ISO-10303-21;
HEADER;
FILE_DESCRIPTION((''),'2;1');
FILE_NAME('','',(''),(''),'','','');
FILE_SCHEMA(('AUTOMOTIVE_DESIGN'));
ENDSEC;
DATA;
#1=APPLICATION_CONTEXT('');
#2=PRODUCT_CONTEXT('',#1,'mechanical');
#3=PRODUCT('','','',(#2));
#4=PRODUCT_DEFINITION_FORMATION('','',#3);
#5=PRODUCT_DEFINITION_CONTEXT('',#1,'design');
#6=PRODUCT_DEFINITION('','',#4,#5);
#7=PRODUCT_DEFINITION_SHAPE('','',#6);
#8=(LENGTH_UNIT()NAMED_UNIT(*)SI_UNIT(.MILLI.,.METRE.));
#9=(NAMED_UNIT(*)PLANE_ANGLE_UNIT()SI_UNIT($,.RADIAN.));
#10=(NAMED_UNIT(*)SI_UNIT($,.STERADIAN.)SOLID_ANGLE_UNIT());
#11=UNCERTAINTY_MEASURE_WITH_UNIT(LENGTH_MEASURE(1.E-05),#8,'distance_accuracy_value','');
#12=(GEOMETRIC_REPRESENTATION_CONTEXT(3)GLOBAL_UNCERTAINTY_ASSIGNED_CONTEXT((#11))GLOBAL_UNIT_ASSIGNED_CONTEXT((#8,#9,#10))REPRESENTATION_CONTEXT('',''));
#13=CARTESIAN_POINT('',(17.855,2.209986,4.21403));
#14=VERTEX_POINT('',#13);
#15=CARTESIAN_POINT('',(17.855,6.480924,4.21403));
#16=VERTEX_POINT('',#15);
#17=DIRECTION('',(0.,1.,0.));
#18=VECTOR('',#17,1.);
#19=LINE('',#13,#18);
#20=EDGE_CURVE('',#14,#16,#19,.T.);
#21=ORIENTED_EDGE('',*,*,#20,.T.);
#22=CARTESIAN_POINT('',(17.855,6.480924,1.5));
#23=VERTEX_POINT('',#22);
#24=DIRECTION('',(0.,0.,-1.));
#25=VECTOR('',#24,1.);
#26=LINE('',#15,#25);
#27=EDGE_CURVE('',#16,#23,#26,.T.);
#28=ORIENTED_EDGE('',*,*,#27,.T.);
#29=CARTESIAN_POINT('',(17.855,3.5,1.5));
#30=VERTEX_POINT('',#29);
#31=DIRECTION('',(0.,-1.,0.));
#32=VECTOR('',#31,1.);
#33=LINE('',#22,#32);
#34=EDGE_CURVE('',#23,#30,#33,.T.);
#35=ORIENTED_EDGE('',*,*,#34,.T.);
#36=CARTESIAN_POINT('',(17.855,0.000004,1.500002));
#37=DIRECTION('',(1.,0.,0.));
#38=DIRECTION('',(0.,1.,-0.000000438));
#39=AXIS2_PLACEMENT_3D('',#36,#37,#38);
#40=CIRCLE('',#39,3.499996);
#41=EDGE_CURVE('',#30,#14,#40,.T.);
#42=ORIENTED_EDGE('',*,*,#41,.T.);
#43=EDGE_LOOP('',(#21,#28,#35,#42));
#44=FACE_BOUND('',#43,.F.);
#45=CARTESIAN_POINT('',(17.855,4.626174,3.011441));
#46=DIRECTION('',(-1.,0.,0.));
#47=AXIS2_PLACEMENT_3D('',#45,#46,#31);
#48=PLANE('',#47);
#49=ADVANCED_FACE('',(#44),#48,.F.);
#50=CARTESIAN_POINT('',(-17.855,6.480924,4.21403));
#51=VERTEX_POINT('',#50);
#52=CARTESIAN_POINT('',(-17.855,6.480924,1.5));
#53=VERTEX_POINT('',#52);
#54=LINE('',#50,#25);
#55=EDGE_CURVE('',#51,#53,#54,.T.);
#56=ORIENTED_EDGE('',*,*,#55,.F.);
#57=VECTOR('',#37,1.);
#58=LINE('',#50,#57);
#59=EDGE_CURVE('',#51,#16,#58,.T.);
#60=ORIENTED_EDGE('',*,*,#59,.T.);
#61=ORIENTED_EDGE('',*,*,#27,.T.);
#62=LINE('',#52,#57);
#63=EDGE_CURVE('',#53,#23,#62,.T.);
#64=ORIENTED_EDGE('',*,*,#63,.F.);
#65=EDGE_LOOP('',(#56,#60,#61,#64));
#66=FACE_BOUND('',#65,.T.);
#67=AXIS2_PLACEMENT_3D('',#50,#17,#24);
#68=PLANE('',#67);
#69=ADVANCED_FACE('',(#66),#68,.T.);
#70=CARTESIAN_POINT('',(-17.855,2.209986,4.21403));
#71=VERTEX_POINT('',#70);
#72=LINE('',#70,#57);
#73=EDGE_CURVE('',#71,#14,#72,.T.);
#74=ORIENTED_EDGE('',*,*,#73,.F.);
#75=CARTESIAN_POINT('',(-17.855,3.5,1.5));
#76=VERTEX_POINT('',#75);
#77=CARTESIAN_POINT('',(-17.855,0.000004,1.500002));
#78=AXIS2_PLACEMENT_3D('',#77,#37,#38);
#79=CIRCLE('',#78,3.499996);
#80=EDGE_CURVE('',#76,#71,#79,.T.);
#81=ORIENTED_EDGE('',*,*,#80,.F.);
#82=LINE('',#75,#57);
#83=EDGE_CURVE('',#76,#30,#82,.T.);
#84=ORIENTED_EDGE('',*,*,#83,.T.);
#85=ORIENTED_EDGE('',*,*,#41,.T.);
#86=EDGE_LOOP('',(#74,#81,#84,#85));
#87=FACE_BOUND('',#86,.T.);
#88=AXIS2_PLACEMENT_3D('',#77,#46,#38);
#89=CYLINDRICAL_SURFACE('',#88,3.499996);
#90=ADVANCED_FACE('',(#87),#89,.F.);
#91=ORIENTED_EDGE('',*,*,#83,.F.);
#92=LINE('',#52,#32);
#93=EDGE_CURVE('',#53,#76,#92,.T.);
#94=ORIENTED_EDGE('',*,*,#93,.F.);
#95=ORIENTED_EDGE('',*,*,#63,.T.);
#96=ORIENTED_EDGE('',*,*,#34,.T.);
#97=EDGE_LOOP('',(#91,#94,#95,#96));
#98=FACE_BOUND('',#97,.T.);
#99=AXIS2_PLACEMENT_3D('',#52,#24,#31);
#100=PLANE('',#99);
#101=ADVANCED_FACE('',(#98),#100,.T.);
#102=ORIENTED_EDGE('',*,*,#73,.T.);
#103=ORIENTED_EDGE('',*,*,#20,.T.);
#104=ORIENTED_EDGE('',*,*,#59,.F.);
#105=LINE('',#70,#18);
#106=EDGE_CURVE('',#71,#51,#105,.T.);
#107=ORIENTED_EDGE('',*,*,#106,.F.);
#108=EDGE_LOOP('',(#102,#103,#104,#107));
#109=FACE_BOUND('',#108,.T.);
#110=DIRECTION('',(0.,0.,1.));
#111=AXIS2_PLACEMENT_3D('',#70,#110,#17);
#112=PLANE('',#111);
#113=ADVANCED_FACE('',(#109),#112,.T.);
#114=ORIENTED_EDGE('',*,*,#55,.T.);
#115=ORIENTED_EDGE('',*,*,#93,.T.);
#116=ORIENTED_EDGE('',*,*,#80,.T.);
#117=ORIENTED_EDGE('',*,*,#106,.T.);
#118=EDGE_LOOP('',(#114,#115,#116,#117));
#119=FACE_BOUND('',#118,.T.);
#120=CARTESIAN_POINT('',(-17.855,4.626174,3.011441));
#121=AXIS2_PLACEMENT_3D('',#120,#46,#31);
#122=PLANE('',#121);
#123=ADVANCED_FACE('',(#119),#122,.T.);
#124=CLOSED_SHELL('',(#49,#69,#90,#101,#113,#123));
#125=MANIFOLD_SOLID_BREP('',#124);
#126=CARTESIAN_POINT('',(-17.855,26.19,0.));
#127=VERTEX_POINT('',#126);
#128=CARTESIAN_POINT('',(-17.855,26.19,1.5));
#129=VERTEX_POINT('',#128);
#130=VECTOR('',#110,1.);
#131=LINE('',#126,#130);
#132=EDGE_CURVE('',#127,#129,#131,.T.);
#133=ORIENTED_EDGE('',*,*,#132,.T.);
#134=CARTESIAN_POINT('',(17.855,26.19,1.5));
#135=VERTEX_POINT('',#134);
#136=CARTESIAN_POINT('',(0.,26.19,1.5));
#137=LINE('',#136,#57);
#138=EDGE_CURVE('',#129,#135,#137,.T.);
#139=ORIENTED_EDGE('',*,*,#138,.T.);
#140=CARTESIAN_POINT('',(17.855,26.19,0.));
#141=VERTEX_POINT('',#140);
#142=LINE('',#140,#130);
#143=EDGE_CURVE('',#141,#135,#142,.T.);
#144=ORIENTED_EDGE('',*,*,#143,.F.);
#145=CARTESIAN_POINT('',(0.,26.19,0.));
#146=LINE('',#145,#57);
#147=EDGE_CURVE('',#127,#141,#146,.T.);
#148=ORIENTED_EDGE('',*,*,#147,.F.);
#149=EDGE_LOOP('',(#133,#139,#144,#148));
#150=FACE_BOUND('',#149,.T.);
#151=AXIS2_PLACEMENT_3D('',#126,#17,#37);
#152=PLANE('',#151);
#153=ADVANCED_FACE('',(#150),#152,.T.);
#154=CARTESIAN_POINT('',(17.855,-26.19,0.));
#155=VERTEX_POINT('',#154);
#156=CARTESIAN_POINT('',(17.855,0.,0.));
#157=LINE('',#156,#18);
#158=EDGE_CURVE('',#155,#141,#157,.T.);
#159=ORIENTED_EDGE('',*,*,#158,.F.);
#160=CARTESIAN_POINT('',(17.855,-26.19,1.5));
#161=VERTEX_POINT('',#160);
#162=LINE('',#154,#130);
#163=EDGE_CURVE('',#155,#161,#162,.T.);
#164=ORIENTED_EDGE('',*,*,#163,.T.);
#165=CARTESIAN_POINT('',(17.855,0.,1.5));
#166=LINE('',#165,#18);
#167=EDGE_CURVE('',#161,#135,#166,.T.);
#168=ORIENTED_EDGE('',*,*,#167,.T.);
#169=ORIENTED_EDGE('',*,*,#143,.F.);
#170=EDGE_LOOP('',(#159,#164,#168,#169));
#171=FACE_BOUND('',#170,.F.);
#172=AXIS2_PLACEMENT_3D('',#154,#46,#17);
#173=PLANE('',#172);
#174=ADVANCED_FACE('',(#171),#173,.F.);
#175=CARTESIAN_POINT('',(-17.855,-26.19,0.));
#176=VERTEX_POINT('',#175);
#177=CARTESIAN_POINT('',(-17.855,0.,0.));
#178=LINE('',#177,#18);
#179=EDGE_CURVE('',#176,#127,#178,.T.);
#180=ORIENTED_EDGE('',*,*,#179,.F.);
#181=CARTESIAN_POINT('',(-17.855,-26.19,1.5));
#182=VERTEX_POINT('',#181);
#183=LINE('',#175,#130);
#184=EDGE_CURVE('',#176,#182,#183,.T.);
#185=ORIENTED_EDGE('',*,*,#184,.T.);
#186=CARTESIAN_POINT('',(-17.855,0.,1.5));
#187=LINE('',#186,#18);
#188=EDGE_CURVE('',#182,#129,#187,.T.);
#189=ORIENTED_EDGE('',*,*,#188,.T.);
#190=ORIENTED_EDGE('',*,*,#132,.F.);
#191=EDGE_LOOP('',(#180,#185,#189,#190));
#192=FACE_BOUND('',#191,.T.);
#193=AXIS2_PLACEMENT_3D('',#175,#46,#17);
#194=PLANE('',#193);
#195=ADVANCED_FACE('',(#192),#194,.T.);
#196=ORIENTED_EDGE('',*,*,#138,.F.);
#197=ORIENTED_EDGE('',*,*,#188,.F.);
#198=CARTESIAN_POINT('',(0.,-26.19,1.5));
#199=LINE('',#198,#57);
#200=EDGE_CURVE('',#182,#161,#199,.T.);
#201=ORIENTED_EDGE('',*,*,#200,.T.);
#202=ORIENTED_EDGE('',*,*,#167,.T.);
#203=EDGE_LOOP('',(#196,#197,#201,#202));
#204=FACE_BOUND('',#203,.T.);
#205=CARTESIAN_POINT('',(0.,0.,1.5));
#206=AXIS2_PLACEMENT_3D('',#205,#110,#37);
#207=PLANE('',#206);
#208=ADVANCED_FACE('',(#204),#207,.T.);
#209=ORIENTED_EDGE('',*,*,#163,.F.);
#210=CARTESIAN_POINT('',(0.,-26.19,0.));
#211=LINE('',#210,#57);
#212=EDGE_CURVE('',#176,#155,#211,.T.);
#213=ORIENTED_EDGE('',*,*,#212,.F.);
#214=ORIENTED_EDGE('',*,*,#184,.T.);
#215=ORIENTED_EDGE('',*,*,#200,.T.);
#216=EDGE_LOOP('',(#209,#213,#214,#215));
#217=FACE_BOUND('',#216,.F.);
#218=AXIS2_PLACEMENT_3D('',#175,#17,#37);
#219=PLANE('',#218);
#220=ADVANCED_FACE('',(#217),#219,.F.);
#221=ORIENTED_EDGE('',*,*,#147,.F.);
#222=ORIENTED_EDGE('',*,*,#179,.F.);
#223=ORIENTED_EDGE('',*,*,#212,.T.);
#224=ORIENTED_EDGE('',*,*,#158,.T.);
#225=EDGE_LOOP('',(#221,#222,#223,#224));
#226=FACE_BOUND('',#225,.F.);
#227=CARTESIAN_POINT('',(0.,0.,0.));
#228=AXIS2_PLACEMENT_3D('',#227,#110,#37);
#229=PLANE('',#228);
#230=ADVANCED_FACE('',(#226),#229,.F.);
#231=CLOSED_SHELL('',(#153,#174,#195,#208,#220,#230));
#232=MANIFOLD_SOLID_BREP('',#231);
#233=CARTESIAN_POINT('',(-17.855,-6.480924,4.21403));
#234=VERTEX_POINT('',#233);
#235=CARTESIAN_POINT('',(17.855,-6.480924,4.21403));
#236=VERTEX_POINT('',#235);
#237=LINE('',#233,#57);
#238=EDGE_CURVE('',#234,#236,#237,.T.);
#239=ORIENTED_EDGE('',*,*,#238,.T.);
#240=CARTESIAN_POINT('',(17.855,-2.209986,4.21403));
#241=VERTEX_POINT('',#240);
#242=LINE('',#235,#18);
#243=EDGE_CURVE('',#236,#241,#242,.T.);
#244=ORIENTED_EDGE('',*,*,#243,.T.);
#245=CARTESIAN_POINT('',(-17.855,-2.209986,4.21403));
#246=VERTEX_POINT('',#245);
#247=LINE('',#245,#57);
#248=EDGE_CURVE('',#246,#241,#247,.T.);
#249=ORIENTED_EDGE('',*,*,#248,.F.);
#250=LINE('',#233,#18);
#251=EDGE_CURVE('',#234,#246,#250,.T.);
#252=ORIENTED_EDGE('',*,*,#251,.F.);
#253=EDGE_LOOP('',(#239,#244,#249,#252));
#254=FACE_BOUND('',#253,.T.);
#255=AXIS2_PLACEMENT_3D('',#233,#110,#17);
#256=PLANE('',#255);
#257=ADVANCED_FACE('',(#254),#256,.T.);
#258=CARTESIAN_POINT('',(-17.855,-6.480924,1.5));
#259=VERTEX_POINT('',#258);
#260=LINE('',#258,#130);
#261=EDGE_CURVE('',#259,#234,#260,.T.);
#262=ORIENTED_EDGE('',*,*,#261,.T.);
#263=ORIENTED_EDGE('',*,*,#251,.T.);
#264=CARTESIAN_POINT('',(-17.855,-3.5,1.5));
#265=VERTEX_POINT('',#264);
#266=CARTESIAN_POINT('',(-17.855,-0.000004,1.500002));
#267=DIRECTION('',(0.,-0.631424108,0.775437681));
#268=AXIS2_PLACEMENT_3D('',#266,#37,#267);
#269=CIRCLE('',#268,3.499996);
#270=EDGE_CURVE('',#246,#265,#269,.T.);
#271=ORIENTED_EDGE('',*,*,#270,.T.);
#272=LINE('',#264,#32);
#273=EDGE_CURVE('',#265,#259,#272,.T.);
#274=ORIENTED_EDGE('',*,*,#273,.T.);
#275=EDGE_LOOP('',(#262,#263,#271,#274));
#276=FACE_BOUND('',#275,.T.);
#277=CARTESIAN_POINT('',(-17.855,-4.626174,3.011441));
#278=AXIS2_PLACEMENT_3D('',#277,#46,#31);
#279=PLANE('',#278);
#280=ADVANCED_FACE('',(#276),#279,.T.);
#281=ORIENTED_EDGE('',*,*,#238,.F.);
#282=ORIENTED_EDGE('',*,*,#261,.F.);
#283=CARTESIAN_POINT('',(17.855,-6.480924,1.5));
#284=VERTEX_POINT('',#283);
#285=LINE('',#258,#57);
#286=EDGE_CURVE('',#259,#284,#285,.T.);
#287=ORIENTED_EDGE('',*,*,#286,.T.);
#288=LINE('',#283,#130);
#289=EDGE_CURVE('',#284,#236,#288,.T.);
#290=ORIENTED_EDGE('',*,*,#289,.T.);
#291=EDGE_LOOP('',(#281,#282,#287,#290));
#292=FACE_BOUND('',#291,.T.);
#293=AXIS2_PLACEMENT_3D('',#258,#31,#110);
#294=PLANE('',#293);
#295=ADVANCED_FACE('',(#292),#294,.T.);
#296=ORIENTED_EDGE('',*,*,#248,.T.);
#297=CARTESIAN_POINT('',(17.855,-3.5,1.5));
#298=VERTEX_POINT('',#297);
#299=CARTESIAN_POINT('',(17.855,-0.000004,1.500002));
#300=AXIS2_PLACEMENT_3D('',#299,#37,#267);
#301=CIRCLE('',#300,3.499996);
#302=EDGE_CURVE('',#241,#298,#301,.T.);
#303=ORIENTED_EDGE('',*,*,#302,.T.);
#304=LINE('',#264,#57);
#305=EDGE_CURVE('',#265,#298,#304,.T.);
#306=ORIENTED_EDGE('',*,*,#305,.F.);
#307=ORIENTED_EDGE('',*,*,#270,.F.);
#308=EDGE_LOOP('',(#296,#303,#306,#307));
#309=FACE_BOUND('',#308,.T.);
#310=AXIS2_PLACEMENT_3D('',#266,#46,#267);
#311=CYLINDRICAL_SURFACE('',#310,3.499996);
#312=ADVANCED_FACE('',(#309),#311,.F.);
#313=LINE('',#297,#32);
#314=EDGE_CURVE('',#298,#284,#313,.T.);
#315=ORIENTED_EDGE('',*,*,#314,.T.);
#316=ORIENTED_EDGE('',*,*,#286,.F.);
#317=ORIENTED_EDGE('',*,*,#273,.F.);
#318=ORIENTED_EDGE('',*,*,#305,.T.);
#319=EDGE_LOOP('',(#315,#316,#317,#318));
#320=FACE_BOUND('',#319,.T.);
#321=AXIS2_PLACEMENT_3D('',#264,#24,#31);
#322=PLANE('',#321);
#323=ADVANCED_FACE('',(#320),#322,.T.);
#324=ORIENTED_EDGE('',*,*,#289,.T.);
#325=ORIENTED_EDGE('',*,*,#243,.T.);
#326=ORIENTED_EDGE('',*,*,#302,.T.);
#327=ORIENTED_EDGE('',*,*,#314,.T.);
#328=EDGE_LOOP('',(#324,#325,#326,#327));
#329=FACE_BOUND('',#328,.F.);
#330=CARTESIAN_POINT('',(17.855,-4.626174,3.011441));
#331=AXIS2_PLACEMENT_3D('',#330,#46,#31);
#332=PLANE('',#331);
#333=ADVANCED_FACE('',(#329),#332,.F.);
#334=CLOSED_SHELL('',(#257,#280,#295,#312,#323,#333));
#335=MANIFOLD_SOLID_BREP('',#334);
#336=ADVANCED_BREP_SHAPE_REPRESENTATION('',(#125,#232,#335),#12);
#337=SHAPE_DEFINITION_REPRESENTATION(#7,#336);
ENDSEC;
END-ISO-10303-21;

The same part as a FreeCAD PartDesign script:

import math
import FreeCAD as App
import Part
import Sketcher

V = App.Vector
Q = App.Units.Quantity


def add_polygon(sketch, points):
    """Adds a closed chain of lines whose ends are joined by coincident constraints."""
    first, n = sketch.GeometryCount, len(points)
    for a, b in zip(points, points[1:] + points[:1]):
        sketch.addGeometry(Part.LineSegment(App.Vector(*a, 0), App.Vector(*b, 0)), False)
    for i in range(n):
        sketch.addConstraint(Sketcher.Constraint("Coincident", first + i, 2, first + (i + 1) % n, 1))

doc = App.newDocument("Part")
params = doc.addObject("Spreadsheet::Sheet", "Params")
for row, (alias, value) in enumerate([
    ("sketch1_width", "35.71 mm"),
    ("sketch1_height", "52.38 mm"),
    ("pad1_length", "1.5 mm"),
    ("pad2_length", "35.71 mm"),
], start=1):
    params.set(f"A{row}", alias)
    params.set(f"B{row}", "=" + value)
    params.setAlias(f"B{row}", alias)

body = doc.addObject("PartDesign::Body", "Body")

# Sketch on XY plane
sketch1 = body.newObject("Sketcher::SketchObject", "Sketch")
sketch1.AttachmentSupport = (doc.getObject("XY_Plane"), [""])
sketch1.MapMode = "FlatFace"
add_polygon(sketch1, [(-18, 26), (-18, -26), (18, -26), (18, 26)])  # lines 0-3
sketch1.addConstraint(Sketcher.Constraint("Vertical", 0))
sketch1.addConstraint(Sketcher.Constraint("Horizontal", 1))
sketch1.addConstraint(Sketcher.Constraint("Vertical", 2))
sketch1.addConstraint(Sketcher.Constraint("Horizontal", 3))
sketch1.addConstraint(Sketcher.Constraint("Symmetric", 0, 2, 2, 2, -1, 1))
sketch1.addConstraint(Sketcher.Constraint("DistanceX", 1, 1, 1, 2, Q("35.71 mm")))
sketch1.addConstraint(Sketcher.Constraint("DistanceY", 0, 2, 0, 1, Q("52.38 mm")))
sketch1.setExpression("Constraints[9]", "Params.sketch1_width")
sketch1.setExpression("Constraints[10]", "Params.sketch1_height")
pad1 = body.newObject("PartDesign::Pad", "Pad")
pad1.Profile = sketch1
pad1.setExpression("Length", "Params.pad1_length")
body2 = doc.addObject("PartDesign::Body", "Body001")
body2.AllowCompound = True

# Sketch on YZ plane
sketch2 = body2.newObject("Sketcher::SketchObject", "Sketch001")
sketch2.AttachmentSupport = (doc.getObject("YZ_Plane001"), [""])
sketch2.MapMode = "FlatFace"
sketch2.AttachmentOffset = App.Placement(V(0, 0, -17.855), App.Rotation())
sketch2.addGeometry(Part.ArcOfCircle(Part.Circle(V(0, 1.5, 0), V(0, 0, 1), 3.5), math.radians(0), math.radians(51)), False)
sketch2.addGeometry(Part.LineSegment(V(2.2, 4.2, 0), V(6.5, 4.2, 0)), False)
sketch2.addGeometry(Part.LineSegment(V(6.5, 4.2, 0), V(6.5, 1.5, 0)), False)
sketch2.addGeometry(Part.LineSegment(V(6.5, 1.5, 0), V(3.5, 1.5, 0)), False)
sketch2.addGeometry(Part.LineSegment(V(-6.5, 4.2, 0), V(-2.2, 4.2, 0)), False)
sketch2.addGeometry(Part.ArcOfCircle(Part.Circle(V(0, 1.5, 0), V(0, 0, 1), 3.5), math.radians(129), math.radians(180)), False)
sketch2.addGeometry(Part.LineSegment(V(-3.5, 1.5, 0), V(-6.5, 1.5, 0)), False)
sketch2.addGeometry(Part.LineSegment(V(-6.5, 1.5, 0), V(-6.5, 4.2, 0)), False)
sketch2.addConstraint(Sketcher.Constraint("Coincident", 0, 2, 1, 1))
sketch2.addConstraint(Sketcher.Constraint("Coincident", 1, 2, 2, 1))
sketch2.addConstraint(Sketcher.Constraint("Coincident", 2, 2, 3, 1))
sketch2.addConstraint(Sketcher.Constraint("Coincident", 3, 2, 0, 1))
sketch2.addConstraint(Sketcher.Constraint("Coincident", 4, 2, 5, 1))
sketch2.addConstraint(Sketcher.Constraint("Coincident", 5, 2, 6, 1))
sketch2.addConstraint(Sketcher.Constraint("Coincident", 6, 2, 7, 1))
sketch2.addConstraint(Sketcher.Constraint("Coincident", 7, 2, 4, 1))
sketch2.addConstraint(Sketcher.Constraint("Horizontal", 1))
sketch2.addConstraint(Sketcher.Constraint("Vertical", 2))
sketch2.addConstraint(Sketcher.Constraint("Horizontal", 3))
sketch2.addConstraint(Sketcher.Constraint("Horizontal", 4))
sketch2.addConstraint(Sketcher.Constraint("Horizontal", 6))
sketch2.addConstraint(Sketcher.Constraint("Vertical", 7))
sketch2.addConstraint(Sketcher.Constraint("Coincident", 5, 3, 0, 3))
sketch2.addConstraint(Sketcher.Constraint("Equal", 0, 5))
sketch2.addConstraint(Sketcher.Constraint("Symmetric", 0, 2, 4, 2, -2))
sketch2.addConstraint(Sketcher.Constraint("Symmetric", 2, 2, 6, 2, -2))
sketch2.addConstraint(Sketcher.Constraint("Horizontal", 5, 3, 2, 2))
sketch2.addConstraint(Sketcher.Constraint("DistanceX", 5, 2, 3, 2, Q("7 mm")))
sketch2.addConstraint(Sketcher.Constraint("DistanceY", -1, 1, 0, 3, Q("1.500002 mm")))
sketch2.addConstraint(Sketcher.Constraint("DistanceY", 2, 2, 2, 1, Q("2.71403 mm")))
sketch2.addConstraint(Sketcher.Constraint("DistanceX", 1, 1, 1, 2, Q("4.270938 mm")))
pad2 = body2.newObject("PartDesign::Pad", "Pad001")
pad2.Profile = sketch2
pad2.setExpression("Length", "Params.pad2_length")

doc.recompute()
